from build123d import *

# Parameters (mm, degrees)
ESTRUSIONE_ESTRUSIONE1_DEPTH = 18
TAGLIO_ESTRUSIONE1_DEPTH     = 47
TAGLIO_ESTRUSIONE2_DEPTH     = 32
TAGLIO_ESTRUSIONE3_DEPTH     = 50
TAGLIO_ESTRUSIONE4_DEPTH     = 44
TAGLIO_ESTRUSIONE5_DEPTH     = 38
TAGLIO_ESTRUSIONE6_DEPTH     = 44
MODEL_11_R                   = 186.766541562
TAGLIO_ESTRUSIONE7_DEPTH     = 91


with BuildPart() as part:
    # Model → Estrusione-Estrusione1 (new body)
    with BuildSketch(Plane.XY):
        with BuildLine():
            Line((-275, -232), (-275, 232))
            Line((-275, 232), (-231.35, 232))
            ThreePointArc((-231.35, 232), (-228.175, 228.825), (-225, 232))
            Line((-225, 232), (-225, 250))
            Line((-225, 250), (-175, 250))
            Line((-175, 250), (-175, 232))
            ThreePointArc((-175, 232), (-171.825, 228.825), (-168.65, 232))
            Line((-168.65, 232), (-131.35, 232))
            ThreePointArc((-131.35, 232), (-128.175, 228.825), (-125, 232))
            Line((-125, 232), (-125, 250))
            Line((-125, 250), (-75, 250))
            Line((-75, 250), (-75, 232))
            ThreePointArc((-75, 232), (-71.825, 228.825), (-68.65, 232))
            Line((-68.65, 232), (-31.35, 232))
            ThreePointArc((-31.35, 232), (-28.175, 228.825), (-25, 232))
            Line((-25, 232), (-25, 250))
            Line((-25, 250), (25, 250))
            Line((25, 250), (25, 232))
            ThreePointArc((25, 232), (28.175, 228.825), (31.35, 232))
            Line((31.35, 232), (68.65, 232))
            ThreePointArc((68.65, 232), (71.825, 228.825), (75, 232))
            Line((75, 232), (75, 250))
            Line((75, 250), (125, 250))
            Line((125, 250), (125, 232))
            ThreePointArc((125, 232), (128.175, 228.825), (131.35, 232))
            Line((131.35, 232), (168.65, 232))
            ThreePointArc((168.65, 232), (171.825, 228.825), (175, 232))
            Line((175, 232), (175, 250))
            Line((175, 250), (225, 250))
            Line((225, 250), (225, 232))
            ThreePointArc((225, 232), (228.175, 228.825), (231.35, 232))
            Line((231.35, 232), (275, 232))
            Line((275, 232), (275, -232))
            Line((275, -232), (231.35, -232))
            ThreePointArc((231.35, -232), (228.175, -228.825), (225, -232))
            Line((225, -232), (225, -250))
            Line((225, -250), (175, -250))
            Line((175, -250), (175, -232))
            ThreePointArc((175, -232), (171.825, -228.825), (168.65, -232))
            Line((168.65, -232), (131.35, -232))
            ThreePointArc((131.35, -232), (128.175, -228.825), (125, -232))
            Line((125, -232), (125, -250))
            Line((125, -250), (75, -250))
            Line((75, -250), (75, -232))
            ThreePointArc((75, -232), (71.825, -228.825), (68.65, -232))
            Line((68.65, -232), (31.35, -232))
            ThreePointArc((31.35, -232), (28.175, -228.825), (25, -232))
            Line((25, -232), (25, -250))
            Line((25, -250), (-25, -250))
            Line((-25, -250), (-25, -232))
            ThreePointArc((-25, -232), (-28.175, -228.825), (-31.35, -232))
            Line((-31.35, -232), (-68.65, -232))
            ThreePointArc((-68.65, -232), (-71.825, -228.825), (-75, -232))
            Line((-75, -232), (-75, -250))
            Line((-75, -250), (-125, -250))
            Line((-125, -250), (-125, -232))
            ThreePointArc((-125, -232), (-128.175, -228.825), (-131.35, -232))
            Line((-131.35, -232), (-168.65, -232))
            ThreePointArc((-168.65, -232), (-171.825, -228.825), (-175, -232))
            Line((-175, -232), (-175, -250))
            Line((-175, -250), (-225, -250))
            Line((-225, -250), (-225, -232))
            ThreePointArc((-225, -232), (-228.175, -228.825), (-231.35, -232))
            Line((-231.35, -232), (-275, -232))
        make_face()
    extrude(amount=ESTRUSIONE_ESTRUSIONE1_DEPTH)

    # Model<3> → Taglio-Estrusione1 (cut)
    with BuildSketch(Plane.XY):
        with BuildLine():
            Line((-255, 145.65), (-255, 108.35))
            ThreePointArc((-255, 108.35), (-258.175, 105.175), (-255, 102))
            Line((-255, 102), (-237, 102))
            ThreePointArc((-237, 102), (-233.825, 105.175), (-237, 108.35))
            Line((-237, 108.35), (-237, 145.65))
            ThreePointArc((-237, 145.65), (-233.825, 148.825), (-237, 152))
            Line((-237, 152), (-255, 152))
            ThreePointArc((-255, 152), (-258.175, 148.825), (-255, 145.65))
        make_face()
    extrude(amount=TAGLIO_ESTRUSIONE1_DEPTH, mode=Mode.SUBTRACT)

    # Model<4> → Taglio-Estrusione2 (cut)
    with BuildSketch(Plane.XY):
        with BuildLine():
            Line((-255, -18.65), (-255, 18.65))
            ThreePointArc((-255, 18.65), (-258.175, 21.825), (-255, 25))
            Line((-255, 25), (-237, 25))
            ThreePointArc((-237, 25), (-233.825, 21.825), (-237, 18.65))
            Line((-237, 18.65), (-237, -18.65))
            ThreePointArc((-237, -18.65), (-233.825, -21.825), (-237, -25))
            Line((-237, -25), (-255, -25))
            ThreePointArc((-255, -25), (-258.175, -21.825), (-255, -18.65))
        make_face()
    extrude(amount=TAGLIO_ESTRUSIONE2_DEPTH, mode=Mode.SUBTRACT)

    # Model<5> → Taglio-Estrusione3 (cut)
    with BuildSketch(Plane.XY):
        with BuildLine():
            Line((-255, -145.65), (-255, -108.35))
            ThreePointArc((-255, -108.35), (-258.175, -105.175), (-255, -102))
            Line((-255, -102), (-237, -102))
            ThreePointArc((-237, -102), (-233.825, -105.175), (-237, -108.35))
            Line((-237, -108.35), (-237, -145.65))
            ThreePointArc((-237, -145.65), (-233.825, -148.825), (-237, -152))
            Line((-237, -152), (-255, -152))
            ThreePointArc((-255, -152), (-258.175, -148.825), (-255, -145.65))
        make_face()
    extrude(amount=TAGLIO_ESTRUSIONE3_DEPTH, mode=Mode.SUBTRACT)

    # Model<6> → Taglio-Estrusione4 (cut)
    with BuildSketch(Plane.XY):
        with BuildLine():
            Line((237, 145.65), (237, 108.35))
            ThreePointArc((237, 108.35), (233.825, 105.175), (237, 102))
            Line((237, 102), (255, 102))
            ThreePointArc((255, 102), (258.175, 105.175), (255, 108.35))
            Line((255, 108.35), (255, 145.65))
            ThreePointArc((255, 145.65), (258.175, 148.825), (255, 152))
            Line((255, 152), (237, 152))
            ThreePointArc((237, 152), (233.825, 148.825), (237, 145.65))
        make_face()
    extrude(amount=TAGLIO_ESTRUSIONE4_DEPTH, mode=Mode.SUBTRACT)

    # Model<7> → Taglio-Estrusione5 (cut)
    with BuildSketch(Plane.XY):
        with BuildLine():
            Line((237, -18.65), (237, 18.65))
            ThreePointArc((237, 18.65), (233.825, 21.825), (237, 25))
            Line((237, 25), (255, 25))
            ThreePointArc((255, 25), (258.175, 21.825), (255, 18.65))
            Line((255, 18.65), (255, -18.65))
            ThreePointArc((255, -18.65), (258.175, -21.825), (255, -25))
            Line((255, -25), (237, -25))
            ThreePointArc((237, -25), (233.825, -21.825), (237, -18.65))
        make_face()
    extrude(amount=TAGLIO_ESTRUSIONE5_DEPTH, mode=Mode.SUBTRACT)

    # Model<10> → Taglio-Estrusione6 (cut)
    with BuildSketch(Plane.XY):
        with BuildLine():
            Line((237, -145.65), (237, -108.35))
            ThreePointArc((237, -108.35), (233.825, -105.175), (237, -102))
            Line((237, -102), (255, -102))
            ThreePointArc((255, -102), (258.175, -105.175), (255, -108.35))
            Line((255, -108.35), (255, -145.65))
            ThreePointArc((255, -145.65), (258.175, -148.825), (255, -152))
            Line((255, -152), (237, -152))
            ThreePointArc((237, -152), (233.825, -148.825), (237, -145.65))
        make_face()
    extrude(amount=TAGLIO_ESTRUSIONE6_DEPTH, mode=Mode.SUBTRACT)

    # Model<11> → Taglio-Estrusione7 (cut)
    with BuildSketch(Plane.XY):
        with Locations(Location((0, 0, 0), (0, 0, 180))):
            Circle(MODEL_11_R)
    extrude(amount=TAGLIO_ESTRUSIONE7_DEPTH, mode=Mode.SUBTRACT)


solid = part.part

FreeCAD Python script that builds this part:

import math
import FreeCAD as App
import Part
import Sketcher
from FreeCAD import Vector
Q = App.Units.Quantity

doc = App.newDocument("Part")
body = doc.addObject("PartDesign::Body", "Body")

# Sketch on XY plane
sketch1 = doc.addObject("Sketcher::SketchObject", "Sketch")
body.addObject(sketch1)
sketch1.AttachmentSupport = (doc.XY_Plane, [""])
sketch1.MapMode = "FlatFace"
sketch1.addGeometry([
    Part.LineSegment(Vector(-275, 232, 0), Vector(-275, -232, 0)),  # 0
    Part.LineSegment(Vector(-275, -232, 0), Vector(-231.3, -232, 0)),  # 1
    Part.ArcOfCircle(Part.Circle(Vector(-228.2, -232, 0), Vector(0, 0, 1), 3.2), math.radians(0), math.radians(180)),  # 2
    Part.LineSegment(Vector(-225, -232, 0), Vector(-225, -250, 0)),  # 3
    Part.LineSegment(Vector(-225, -250, 0), Vector(-175, -250, 0)),  # 4
    Part.LineSegment(Vector(-175, -250, 0), Vector(-175, -232, 0)),  # 5
    Part.ArcOfCircle(Part.Circle(Vector(-171.8, -232, 0), Vector(0, 0, 1), 3.2), math.radians(0), math.radians(180)),  # 6
    Part.LineSegment(Vector(-168.7, -232, 0), Vector(-131.3, -232, 0)),  # 7
    Part.ArcOfCircle(Part.Circle(Vector(-128.2, -232, 0), Vector(0, 0, 1), 3.2), math.radians(0), math.radians(180)),  # 8
    Part.LineSegment(Vector(-125, -232, 0), Vector(-125, -250, 0)),  # 9
    Part.LineSegment(Vector(-125, -250, 0), Vector(-75, -250, 0)),  # 10
    Part.LineSegment(Vector(-75, -250, 0), Vector(-75, -232, 0)),  # 11
    Part.ArcOfCircle(Part.Circle(Vector(-71.8, -232, 0), Vector(0, 0, 1), 3.2), math.radians(0), math.radians(180)),  # 12
    Part.LineSegment(Vector(-68.7, -232, 0), Vector(-31.4, -232, 0)),  # 13
    Part.ArcOfCircle(Part.Circle(Vector(-28.2, -232, 0), Vector(0, 0, 1), 3.2), math.radians(0), math.radians(180)),  # 14
    Part.LineSegment(Vector(-25, -232, 0), Vector(-25, -250, 0)),  # 15
    Part.LineSegment(Vector(-25, -250, 0), Vector(25, -250, 0)),  # 16
    Part.LineSegment(Vector(25, -250, 0), Vector(25, -232, 0)),  # 17
    Part.ArcOfCircle(Part.Circle(Vector(28.2, -232, 0), Vector(0, 0, 1), 3.2), math.radians(0), math.radians(180)),  # 18
    Part.LineSegment(Vector(31.4, -232, 0), Vector(68.7, -232, 0)),  # 19
    Part.ArcOfCircle(Part.Circle(Vector(71.8, -232, 0), Vector(0, 0, 1), 3.2), math.radians(0), math.radians(180)),  # 20
    Part.LineSegment(Vector(75, -232, 0), Vector(75, -250, 0)),  # 21
    Part.LineSegment(Vector(75, -250, 0), Vector(125, -250, 0)),  # 22
    Part.LineSegment(Vector(125, -250, 0), Vector(125, -232, 0)),  # 23
    Part.ArcOfCircle(Part.Circle(Vector(128.2, -232, 0), Vector(0, 0, 1), 3.2), math.radians(0), math.radians(180)),  # 24
    Part.LineSegment(Vector(131.3, -232, 0), Vector(168.7, -232, 0)),  # 25
    Part.ArcOfCircle(Part.Circle(Vector(171.8, -232, 0), Vector(0, 0, 1), 3.2), math.radians(0), math.radians(180)),  # 26
    Part.LineSegment(Vector(175, -232, 0), Vector(175, -250, 0)),  # 27
    Part.LineSegment(Vector(175, -250, 0), Vector(225, -250, 0)),  # 28
    Part.LineSegment(Vector(225, -250, 0), Vector(225, -232, 0)),  # 29
    Part.ArcOfCircle(Part.Circle(Vector(228.2, -232, 0), Vector(0, 0, 1), 3.2), math.radians(0), math.radians(180)),  # 30
    Part.LineSegment(Vector(231.3, -232, 0), Vector(275, -232, 0)),  # 31
    Part.LineSegment(Vector(275, -232, 0), Vector(275, 232, 0)),  # 32
    Part.LineSegment(Vector(275, 232, 0), Vector(231.3, 232, 0)),  # 33
    Part.ArcOfCircle(Part.Circle(Vector(228.2, 232, 0), Vector(0, 0, 1), 3.2), math.radians(180), math.radians(360)),  # 34
    Part.LineSegment(Vector(225, 232, 0), Vector(225, 250, 0)),  # 35
    Part.LineSegment(Vector(225, 250, 0), Vector(175, 250, 0)),  # 36
    Part.LineSegment(Vector(175, 250, 0), Vector(175, 232, 0)),  # 37
    Part.ArcOfCircle(Part.Circle(Vector(171.8, 232, 0), Vector(0, 0, 1), 3.2), math.radians(180), math.radians(360)),  # 38
    Part.LineSegment(Vector(168.7, 232, 0), Vector(131.3, 232, 0)),  # 39
    Part.ArcOfCircle(Part.Circle(Vector(128.2, 232, 0), Vector(0, 0, 1), 3.2), math.radians(180), math.radians(360)),  # 40
    Part.LineSegment(Vector(125, 232, 0), Vector(125, 250, 0)),  # 41
    Part.LineSegment(Vector(125, 250, 0), Vector(75, 250, 0)),  # 42
    Part.LineSegment(Vector(75, 250, 0), Vector(75, 232, 0)),  # 43
    Part.ArcOfCircle(Part.Circle(Vector(71.8, 232, 0), Vector(0, 0, 1), 3.2), math.radians(180), math.radians(360)),  # 44
    Part.LineSegment(Vector(68.7, 232, 0), Vector(31.4, 232, 0)),  # 45
    Part.ArcOfCircle(Part.Circle(Vector(28.2, 232, 0), Vector(0, 0, 1), 3.2), math.radians(180), math.radians(360)),  # 46
    Part.LineSegment(Vector(25, 232, 0), Vector(25, 250, 0)),  # 47
    Part.LineSegment(Vector(25, 250, 0), Vector(-25, 250, 0)),  # 48
    Part.LineSegment(Vector(-25, 250, 0), Vector(-25, 232, 0)),  # 49
    Part.ArcOfCircle(Part.Circle(Vector(-28.2, 232, 0), Vector(0, 0, 1), 3.2), math.radians(180), math.radians(360)),  # 50
    Part.LineSegment(Vector(-31.4, 232, 0), Vector(-68.7, 232, 0)),  # 51
    Part.ArcOfCircle(Part.Circle(Vector(-71.8, 232, 0), Vector(0, 0, 1), 3.2), math.radians(180), math.radians(360)),  # 52
    Part.LineSegment(Vector(-75, 232, 0), Vector(-75, 250, 0)),  # 53
    Part.LineSegment(Vector(-75, 250, 0), Vector(-125, 250, 0)),  # 54
    Part.LineSegment(Vector(-125, 250, 0), Vector(-125, 232, 0)),  # 55
    Part.ArcOfCircle(Part.Circle(Vector(-128.2, 232, 0), Vector(0, 0, 1), 3.2), math.radians(180), math.radians(360)),  # 56
    Part.LineSegment(Vector(-131.3, 232, 0), Vector(-168.7, 232, 0)),  # 57
    Part.ArcOfCircle(Part.Circle(Vector(-171.8, 232, 0), Vector(0, 0, 1), 3.2), math.radians(180), math.radians(360)),  # 58
    Part.LineSegment(Vector(-175, 232, 0), Vector(-175, 250, 0)),  # 59
    Part.LineSegment(Vector(-175, 250, 0), Vector(-225, 250, 0)),  # 60
    Part.LineSegment(Vector(-225, 250, 0), Vector(-225, 232, 0)),  # 61
    Part.ArcOfCircle(Part.Circle(Vector(-228.2, 232, 0), Vector(0, 0, 1), 3.2), math.radians(180), math.radians(360)),  # 62
    Part.LineSegment(Vector(-231.3, 232, 0), Vector(-275, 232, 0)),  # 63
], False)
sketch1.addConstraint([
    Sketcher.Constraint("Coincident", 0, 2, 1, 1),
    Sketcher.Constraint("Coincident", 1, 2, 2, 2),
    Sketcher.Constraint("Tangent", 2, 1, 3, 1),
    Sketcher.Constraint("Coincident", 3, 2, 4, 1),
    Sketcher.Constraint("Coincident", 4, 2, 5, 1),
    Sketcher.Constraint("Tangent", 5, 2, 6, 2),
    Sketcher.Constraint("Coincident", 6, 1, 7, 1),
    Sketcher.Constraint("Coincident", 7, 2, 8, 2),
    Sketcher.Constraint("Tangent", 8, 1, 9, 1),
    Sketcher.Constraint("Coincident", 9, 2, 10, 1),
    Sketcher.Constraint("Coincident", 10, 2, 11, 1),
    Sketcher.Constraint("Tangent", 11, 2, 12, 2),
    Sketcher.Constraint("Coincident", 12, 1, 13, 1),
    Sketcher.Constraint("Coincident", 13, 2, 14, 2),
    Sketcher.Constraint("Tangent", 14, 1, 15, 1),
    Sketcher.Constraint("Coincident", 15, 2, 16, 1),
    Sketcher.Constraint("Coincident", 16, 2, 17, 1),
    Sketcher.Constraint("Tangent", 17, 2, 18, 2),
    Sketcher.Constraint("Coincident", 18, 1, 19, 1),
    Sketcher.Constraint("Coincident", 19, 2, 20, 2),
    Sketcher.Constraint("Tangent", 20, 1, 21, 1),
    Sketcher.Constraint("Coincident", 21, 2, 22, 1),
    Sketcher.Constraint("Coincident", 22, 2, 23, 1),
    Sketcher.Constraint("Tangent", 23, 2, 24, 2),
    Sketcher.Constraint("Coincident", 24, 1, 25, 1),
    Sketcher.Constraint("Coincident", 25, 2, 26, 2),
    Sketcher.Constraint("Tangent", 26, 1, 27, 1),
    Sketcher.Constraint("Coincident", 27, 2, 28, 1),
    Sketcher.Constraint("Coincident", 28, 2, 29, 1),
    Sketcher.Constraint("Tangent", 29, 2, 30, 2),
    Sketcher.Constraint("Coincident", 30, 1, 31, 1),
    Sketcher.Constraint("Coincident", 31, 2, 32, 1),
    Sketcher.Constraint("Coincident", 32, 2, 33, 1),
    Sketcher.Constraint("Coincident", 33, 2, 34, 2),
    Sketcher.Constraint("Tangent", 34, 1, 35, 1),
    Sketcher.Constraint("Coincident", 35, 2, 36, 1),
    Sketcher.Constraint("Coincident", 36, 2, 37, 1),
    Sketcher.Constraint("Tangent", 37, 2, 38, 2),
    Sketcher.Constraint("Coincident", 38, 1, 39, 1),
    Sketcher.Constraint("Coincident", 39, 2, 40, 2),
    Sketcher.Constraint("Tangent", 40, 1, 41, 1),
    Sketcher.Constraint("Coincident", 41, 2, 42, 1),
    Sketcher.Constraint("Coincident", 42, 2, 43, 1),
    Sketcher.Constraint("Tangent", 43, 2, 44, 2),
    Sketcher.Constraint("Coincident", 44, 1, 45, 1),
    Sketcher.Constraint("Coincident", 45, 2, 46, 2),
    Sketcher.Constraint("Tangent", 46, 1, 47, 1),
    Sketcher.Constraint("Coincident", 47, 2, 48, 1),
    Sketcher.Constraint("Coincident", 48, 2, 49, 1),
    Sketcher.Constraint("Tangent", 49, 2, 50, 2),
    Sketcher.Constraint("Coincident", 50, 1, 51, 1),
    Sketcher.Constraint("Coincident", 51, 2, 52, 2),
    Sketcher.Constraint("Tangent", 52, 1, 53, 1),
    Sketcher.Constraint("Coincident", 53, 2, 54, 1),
    Sketcher.Constraint("Coincident", 54, 2, 55, 1),
    Sketcher.Constraint("Tangent", 55, 2, 56, 2),
    Sketcher.Constraint("Coincident", 56, 1, 57, 1),
    Sketcher.Constraint("Coincident", 57, 2, 58, 2),
    Sketcher.Constraint("Tangent", 58, 1, 59, 1),
    Sketcher.Constraint("Coincident", 59, 2, 60, 1),
    Sketcher.Constraint("Coincident", 60, 2, 61, 1),
    Sketcher.Constraint("Tangent", 61, 2, 62, 2),
    Sketcher.Constraint("Coincident", 62, 1, 63, 1),
    Sketcher.Constraint("Coincident", 63, 2, 0, 1),
    Sketcher.Constraint("Vertical", 0),
    Sketcher.Constraint("Horizontal", 1),
    Sketcher.Constraint("Vertical", 3),
    Sketcher.Constraint("Horizontal", 4),
    Sketcher.Constraint("Vertical", 5),
    Sketcher.Constraint("Horizontal", 7),
    Sketcher.Constraint("Vertical", 9),
    Sketcher.Constraint("Horizontal", 10),
    Sketcher.Constraint("Vertical", 11),
    Sketcher.Constraint("Horizontal", 13),
    Sketcher.Constraint("Vertical", 15),
    Sketcher.Constraint("Horizontal", 16),
    Sketcher.Constraint("Vertical", 17),
    Sketcher.Constraint("Horizontal", 19),
    Sketcher.Constraint("Vertical", 21),
    Sketcher.Constraint("Horizontal", 22),
    Sketcher.Constraint("Vertical", 23),
    Sketcher.Constraint("Horizontal", 25),
    Sketcher.Constraint("Vertical", 27),
    Sketcher.Constraint("Horizontal", 28),
    Sketcher.Constraint("Vertical", 29),
    Sketcher.Constraint("Horizontal", 31),
    Sketcher.Constraint("Vertical", 32),
    Sketcher.Constraint("Horizontal", 33),
    Sketcher.Constraint("Vertical", 35),
    Sketcher.Constraint("Horizontal", 36),
    Sketcher.Constraint("Vertical", 37),
    Sketcher.Constraint("Horizontal", 39),
    Sketcher.Constraint("Vertical", 41),
    Sketcher.Constraint("Horizontal", 42),
    Sketcher.Constraint("Vertical", 43),
    Sketcher.Constraint("Horizontal", 45),
    Sketcher.Constraint("Vertical", 47),
    Sketcher.Constraint("Horizontal", 48),
    Sketcher.Constraint("Vertical", 49),
    Sketcher.Constraint("Horizontal", 51),
    Sketcher.Constraint("Vertical", 53),
    Sketcher.Constraint("Horizontal", 54),
    Sketcher.Constraint("Vertical", 55),
    Sketcher.Constraint("Horizontal", 57),
    Sketcher.Constraint("Vertical", 59),
    Sketcher.Constraint("Horizontal", 60),
    Sketcher.Constraint("Vertical", 61),
    Sketcher.Constraint("Horizontal", 63),
    Sketcher.Constraint("Equal", 2, 6),
    Sketcher.Constraint("Equal", 6, 8),
    Sketcher.Constraint("Equal", 8, 12),
    Sketcher.Constraint("Equal", 12, 14),
    Sketcher.Constraint("Equal", 14, 18),
    Sketcher.Constraint("Equal", 18, 20),
    Sketcher.Constraint("Equal", 20, 24),
    Sketcher.Constraint("Equal", 24, 26),
    Sketcher.Constraint("Equal", 26, 30),
    Sketcher.Constraint("Equal", 30, 34),
    Sketcher.Constraint("Equal", 34, 38),
    Sketcher.Constraint("Equal", 38, 40),
    Sketcher.Constraint("Equal", 40, 44),
    Sketcher.Constraint("Equal", 44, 46),
    Sketcher.Constraint("Equal", 46, 50),
    Sketcher.Constraint("Equal", 50, 52),
    Sketcher.Constraint("Equal", 52, 56),
    Sketcher.Constraint("Equal", 56, 58),
    Sketcher.Constraint("Equal", 58, 62),
    Sketcher.Constraint("Symmetric", 2, 3, 34, 3, -1, 1),
    Sketcher.Constraint("Symmetric", 6, 3, 38, 3, -1, 1),
    Sketcher.Constraint("Symmetric", 8, 3, 40, 3, -1, 1),
    Sketcher.Constraint("Symmetric", 12, 3, 44, 3, -1, 1),
    Sketcher.Constraint("Symmetric", 14, 3, 46, 3, -1, 1),
    Sketcher.Constraint("Symmetric", 18, 3, 50, 3, -1, 1),
    Sketcher.Constraint("Symmetric", 20, 3, 52, 3, -1, 1),
    Sketcher.Constraint("Symmetric", 24, 3, 56, 3, -1, 1),
    Sketcher.Constraint("Symmetric", 26, 3, 58, 3, -1, 1),
    Sketcher.Constraint("Symmetric", 30, 3, 62, 3, -1, 1),
    Sketcher.Constraint("Symmetric", 0, 2, 32, 2, -1, 1),
    Sketcher.Constraint("Symmetric", 14, 3, 18, 3, -2),
    Sketcher.Constraint("Symmetric", 12, 3, 20, 3, -2),
    Sketcher.Constraint("Symmetric", 8, 3, 24, 3, -2),
    Sketcher.Constraint("Symmetric", 6, 3, 26, 3, -2),
    Sketcher.Constraint("Symmetric", 2, 3, 30, 3, -2),
    Sketcher.Constraint("Horizontal", 2, 3, 6, 3),
    Sketcher.Constraint("Horizontal", 6, 3, 8, 3),
    Sketcher.Constraint("Horizontal", 8, 3, 12, 3),
    Sketcher.Constraint("Horizontal", 12, 3, 14, 3),
    Sketcher.Constraint("Horizontal", 30, 3, 0, 2),
    Sketcher.Constraint("Horizontal", 5, 2, 6, 1),
    Sketcher.Constraint("Horizontal", 4, 2, 9, 2),
    Sketcher.Constraint("Horizontal", 11, 2, 12, 1),
    Sketcher.Constraint("Horizontal", 10, 2, 15, 2),
    Sketcher.Constraint("Horizontal", 17, 2, 18, 1),
    Sketcher.Constraint("Horizontal", 16, 2, 21, 2),
    Sketcher.Constraint("Horizontal", 23, 2, 24, 1),
    Sketcher.Constraint("Horizontal", 22, 2, 27, 2),
    Sketcher.Constraint("Horizontal", 29, 2, 30, 1),
    Sketcher.Constraint("Horizontal", 37, 2, 38, 1),
    Sketcher.Constraint("Horizontal", 36, 2, 41, 2),
    Sketcher.Constraint("Horizontal", 43, 2, 44, 1),
    Sketcher.Constraint("Horizontal", 42, 2, 47, 2),
    Sketcher.Constraint("Horizontal", 49, 2, 50, 1),
    Sketcher.Constraint("Horizontal", 48, 2, 53, 2),
    Sketcher.Constraint("Horizontal", 55, 2, 56, 1),
    Sketcher.Constraint("Horizontal", 54, 2, 59, 2),
    Sketcher.Constraint("Horizontal", 61, 2, 62, 1),
    Sketcher.Constraint("Equal", 4, 10),
    Sketcher.Constraint("Equal", 7, 13),
    Sketcher.Constraint("Equal", 10, 16),
    Sketcher.Constraint("Equal", 29, 35),
    Sketcher.Constraint("DistanceX", 4, 1, 4, 2, Q("50 mm")),
    Sketcher.Constraint("DistanceY", 0, 2, 0, 1, Q("464 mm")),
    Sketcher.Constraint("DistanceY", 3, 2, 3, 1, Q("18 mm")),
    Sketcher.Constraint("DistanceX", 7, 1, 7, 2, Q("37.3 mm")),
    Sketcher.Constraint("DistanceX", 0, 2, -1, 1, Q("275 mm")),
    Sketcher.Constraint("DistanceX", 2, 1, -1, 1, Q("225 mm")),
])
pad1 = doc.addObject("PartDesign::Pad", "Pad")
body.addObject(pad1)
pad1.Profile = sketch1
pad1.Length = 18

# Sketch on XY plane
sketch2 = doc.addObject("Sketcher::SketchObject", "Sketch001")
body.addObject(sketch2)
sketch2.AttachmentSupport = (doc.XY_Plane, [""])
sketch2.MapMode = "FlatFace"
sketch2.addGeometry([
    Part.LineSegment(Vector(-255, 145.7, 0), Vector(-255, 108.3, 0)),  # 0
    Part.ArcOfCircle(Part.Circle(Vector(-255, 105.2, 0), Vector(0, 0, 1), 3.2), math.radians(90), math.radians(270)),  # 1
    Part.LineSegment(Vector(-255, 102, 0), Vector(-237, 102, 0)),  # 2
    Part.ArcOfCircle(Part.Circle(Vector(-237, 105.2, 0), Vector(0, 0, 1), 3.2), math.radians(-90), math.radians(90)),  # 3
    Part.LineSegment(Vector(-237, 108.3, 0), Vector(-237, 145.7, 0)),  # 4
    Part.ArcOfCircle(Part.Circle(Vector(-237, 148.8, 0), Vector(0, 0, 1), 3.2), math.radians(-90), math.radians(90)),  # 5
    Part.LineSegment(Vector(-237, 152, 0), Vector(-255, 152, 0)),  # 6
    Part.ArcOfCircle(Part.Circle(Vector(-255, 148.8, 0), Vector(0, 0, 1), 3.2), math.radians(90), math.radians(270)),  # 7
], False)
sketch2.addConstraint([
    Sketcher.Constraint("Coincident", 0, 2, 1, 1),
    Sketcher.Constraint("Tangent", 1, 2, 2, 1),
    Sketcher.Constraint("Tangent", 2, 2, 3, 1),
    Sketcher.Constraint("Coincident", 3, 2, 4, 1),
    Sketcher.Constraint("Coincident", 4, 2, 5, 1),
    Sketcher.Constraint("Tangent", 5, 2, 6, 1),
    Sketcher.Constraint("Tangent", 6, 2, 7, 1),
    Sketcher.Constraint("Coincident", 7, 2, 0, 1),
    Sketcher.Constraint("Vertical", 0),
    Sketcher.Constraint("Horizontal", 2),
    Sketcher.Constraint("Vertical", 4),
    Sketcher.Constraint("Horizontal", 6),
    Sketcher.Constraint("Equal", 1, 3),
    Sketcher.Constraint("Equal", 3, 5),
    Sketcher.Constraint("Equal", 5, 7),
    Sketcher.Constraint("Vertical", 3, 3, 5, 3),
    Sketcher.Constraint("Vertical", 1, 3, 7, 3),
    Sketcher.Constraint("Vertical", 7, 3, 0, 2),
    Sketcher.Constraint("Vertical", 2, 2, 3, 2),
    Sketcher.Constraint("DistanceX", 2, 1, 2, 2, Q("18 mm")),
    Sketcher.Constraint("DistanceY", 0, 2, 0, 1, Q("37.3 mm")),
    Sketcher.Constraint("DistanceX", 1, 3, -1, 1, Q("255 mm")),
    Sketcher.Constraint("DistanceY", -1, 1, 1, 2, Q("102 mm")),
    Sketcher.Constraint("DistanceY", -1, 1, 5, 2, Q("152 mm")),
])
pocket1 = doc.addObject("PartDesign::Pocket", "Pocket")
body.addObject(pocket1)
pocket1.Profile = sketch2
pocket1.Length = 47
pocket1.Reversed = True

# Sketch on XY plane
sketch3 = doc.addObject("Sketcher::SketchObject", "Sketch002")
body.addObject(sketch3)
sketch3.AttachmentSupport = (doc.XY_Plane, [""])
sketch3.MapMode = "FlatFace"
sketch3.addGeometry([
    Part.LineSegment(Vector(-255, 18.6, 0), Vector(-255, -18.6, 0)),  # 0
    Part.ArcOfCircle(Part.Circle(Vector(-255, -21.8, 0), Vector(0, 0, 1), 3.2), math.radians(90), math.radians(270)),  # 1
    Part.LineSegment(Vector(-255, -25, 0), Vector(-237, -25, 0)),  # 2
    Part.ArcOfCircle(Part.Circle(Vector(-237, -21.8, 0), Vector(0, 0, 1), 3.2), math.radians(-90), math.radians(90)),  # 3
    Part.LineSegment(Vector(-237, -18.6, 0), Vector(-237, 18.6, 0)),  # 4
    Part.ArcOfCircle(Part.Circle(Vector(-237, 21.8, 0), Vector(0, 0, 1), 3.2), math.radians(-90), math.radians(90)),  # 5
    Part.LineSegment(Vector(-237, 25, 0), Vector(-255, 25, 0)),  # 6
    Part.ArcOfCircle(Part.Circle(Vector(-255, 21.8, 0), Vector(0, 0, 1), 3.2), math.radians(90), math.radians(270)),  # 7
], False)
sketch3.addConstraint([
    Sketcher.Constraint("Coincident", 0, 2, 1, 1),
    Sketcher.Constraint("Tangent", 1, 2, 2, 1),
    Sketcher.Constraint("Tangent", 2, 2, 3, 1),
    Sketcher.Constraint("Coincident", 3, 2, 4, 1),
    Sketcher.Constraint("Coincident", 4, 2, 5, 1),
    Sketcher.Constraint("Tangent", 5, 2, 6, 1),
    Sketcher.Constraint("Tangent", 6, 2, 7, 1),
    Sketcher.Constraint("Coincident", 7, 2, 0, 1),
    Sketcher.Constraint("Vertical", 0),
    Sketcher.Constraint("Horizontal", 2),
    Sketcher.Constraint("Vertical", 4),
    Sketcher.Constraint("Horizontal", 6),
    Sketcher.Constraint("Equal", 1, 3),
    Sketcher.Constraint("Equal", 3, 5),
    Sketcher.Constraint("Equal", 5, 7),
    Sketcher.Constraint("Symmetric", 3, 3, 5, 3, -1),
    Sketcher.Constraint("Vertical", 1, 3, 7, 3),
    Sketcher.Constraint("Vertical", 7, 3, 0, 2),
    Sketcher.Constraint("Vertical", 2, 2, 3, 2),
    Sketcher.Constraint("DistanceX", 2, 1, 2, 2, Q("18 mm")),
    Sketcher.Constraint("DistanceY", 0, 2, 0, 1, Q("37.3 mm")),
    Sketcher.Constraint("DistanceX", 1, 3, -1, 1, Q("255 mm")),
    Sketcher.Constraint("DistanceY", 1, 2, -1, 1, Q("25 mm")),
])
pocket2 = doc.addObject("PartDesign::Pocket", "Pocket001")
body.addObject(pocket2)
pocket2.Profile = sketch3
pocket2.Length = 32
pocket2.Reversed = True

# Sketch on XY plane
sketch4 = doc.addObject("Sketcher::SketchObject", "Sketch003")
body.addObject(sketch4)
sketch4.AttachmentSupport = (doc.XY_Plane, [""])
sketch4.MapMode = "FlatFace"
sketch4.addGeometry([
    Part.LineSegment(Vector(-255, -108.3, 0), Vector(-255, -145.7, 0)),  # 0
    Part.ArcOfCircle(Part.Circle(Vector(-255, -148.8, 0), Vector(0, 0, 1), 3.2), math.radians(90), math.radians(270)),  # 1
    Part.LineSegment(Vector(-255, -152, 0), Vector(-237, -152, 0)),  # 2
    Part.ArcOfCircle(Part.Circle(Vector(-237, -148.8, 0), Vector(0, 0, 1), 3.2), math.radians(-90), math.radians(90)),  # 3
    Part.LineSegment(Vector(-237, -145.7, 0), Vector(-237, -108.3, 0)),  # 4
    Part.ArcOfCircle(Part.Circle(Vector(-237, -105.2, 0), Vector(0, 0, 1), 3.2), math.radians(-90), math.radians(90)),  # 5
    Part.LineSegment(Vector(-237, -102, 0), Vector(-255, -102, 0)),  # 6
    Part.ArcOfCircle(Part.Circle(Vector(-255, -105.2, 0), Vector(0, 0, 1), 3.2), math.radians(90), math.radians(270)),  # 7
], False)
sketch4.addConstraint([
    Sketcher.Constraint("Coincident", 0, 2, 1, 1),
    Sketcher.Constraint("Tangent", 1, 2, 2, 1),
    Sketcher.Constraint("Tangent", 2, 2, 3, 1),
    Sketcher.Constraint("Coincident", 3, 2, 4, 1),
    Sketcher.Constraint("Coincident", 4, 2, 5, 1),
    Sketcher.Constraint("Tangent", 5, 2, 6, 1),
    Sketcher.Constraint("Tangent", 6, 2, 7, 1),
    Sketcher.Constraint("Coincident", 7, 2, 0, 1),
    Sketcher.Constraint("Vertical", 0),
    Sketcher.Constraint("Horizontal", 2),
    Sketcher.Constraint("Vertical", 4),
    Sketcher.Constraint("Horizontal", 6),
    Sketcher.Constraint("Equal", 1, 3),
    Sketcher.Constraint("Equal", 3, 5),
    Sketcher.Constraint("Equal", 5, 7),
    Sketcher.Constraint("Vertical", 3, 3, 5, 3),
    Sketcher.Constraint("Vertical", 1, 3, 7, 3),
    Sketcher.Constraint("Vertical", 7, 3, 0, 2),
    Sketcher.Constraint("Vertical", 2, 2, 3, 2),
    Sketcher.Constraint("DistanceX", 2, 1, 2, 2, Q("18 mm")),
    Sketcher.Constraint("DistanceY", 0, 2, 0, 1, Q("37.3 mm")),
    Sketcher.Constraint("DistanceX", 1, 3, -1, 1, Q("255 mm")),
    Sketcher.Constraint("DistanceY", 1, 2, -1, 1, Q("152 mm")),
    Sketcher.Constraint("DistanceY", 5, 2, -1, 1, Q("102 mm")),
])
pocket3 = doc.addObject("PartDesign::Pocket", "Pocket002")
body.addObject(pocket3)
pocket3.Profile = sketch4
pocket3.Length = 50
pocket3.Reversed = True

# Sketch on XY plane
sketch5 = doc.addObject("Sketcher::SketchObject", "Sketch004")
body.addObject(sketch5)
sketch5.AttachmentSupport = (doc.XY_Plane, [""])
sketch5.MapMode = "FlatFace"
sketch5.addGeometry([
    Part.LineSegment(Vector(237, 145.7, 0), Vector(237, 108.3, 0)),  # 0
    Part.ArcOfCircle(Part.Circle(Vector(237, 105.2, 0), Vector(0, 0, 1), 3.2), math.radians(90), math.radians(270)),  # 1
    Part.LineSegment(Vector(237, 102, 0), Vector(255, 102, 0)),  # 2
    Part.ArcOfCircle(Part.Circle(Vector(255, 105.2, 0), Vector(0, 0, 1), 3.2), math.radians(-90), math.radians(90)),  # 3
    Part.LineSegment(Vector(255, 108.3, 0), Vector(255, 145.7, 0)),  # 4
    Part.ArcOfCircle(Part.Circle(Vector(255, 148.8, 0), Vector(0, 0, 1), 3.2), math.radians(-90), math.radians(90)),  # 5
    Part.LineSegment(Vector(255, 152, 0), Vector(237, 152, 0)),  # 6
    Part.ArcOfCircle(Part.Circle(Vector(237, 148.8, 0), Vector(0, 0, 1), 3.2), math.radians(90), math.radians(270)),  # 7
], False)
sketch5.addConstraint([
    Sketcher.Constraint("Coincident", 0, 2, 1, 1),
    Sketcher.Constraint("Tangent", 1, 2, 2, 1),
    Sketcher.Constraint("Tangent", 2, 2, 3, 1),
    Sketcher.Constraint("Coincident", 3, 2, 4, 1),
    Sketcher.Constraint("Coincident", 4, 2, 5, 1),
    Sketcher.Constraint("Tangent", 5, 2, 6, 1),
    Sketcher.Constraint("Tangent", 6, 2, 7, 1),
    Sketcher.Constraint("Coincident", 7, 2, 0, 1),
    Sketcher.Constraint("Vertical", 0),
    Sketcher.Constraint("Horizontal", 2),
    Sketcher.Constraint("Vertical", 4),
    Sketcher.Constraint("Horizontal", 6),
    Sketcher.Constraint("Equal", 1, 3),
    Sketcher.Constraint("Equal", 3, 5),
    Sketcher.Constraint("Equal", 5, 7),
    Sketcher.Constraint("Vertical", 3, 3, 5, 3),
    Sketcher.Constraint("Vertical", 1, 3, 7, 3),
    Sketcher.Constraint("Vertical", 7, 3, 0, 2),
    Sketcher.Constraint("Vertical", 2, 2, 3, 2),
    Sketcher.Constraint("DistanceX", 2, 1, 2, 2, Q("18 mm")),
    Sketcher.Constraint("DistanceY", 0, 2, 0, 1, Q("37.3 mm")),
    Sketcher.Constraint("DistanceX", -1, 1, 1, 3, Q("237 mm")),
    Sketcher.Constraint("DistanceY", -1, 1, 1, 2, Q("102 mm")),
    Sketcher.Constraint("DistanceY", -1, 1, 5, 2, Q("152 mm")),
])
pocket4 = doc.addObject("PartDesign::Pocket", "Pocket003")
body.addObject(pocket4)
pocket4.Profile = sketch5
pocket4.Length = 44
pocket4.Reversed = True

# Sketch on XY plane
sketch6 = doc.addObject("Sketcher::SketchObject", "Sketch005")
body.addObject(sketch6)
sketch6.AttachmentSupport = (doc.XY_Plane, [""])
sketch6.MapMode = "FlatFace"
sketch6.addGeometry([
    Part.LineSegment(Vector(237, 18.6, 0), Vector(237, -18.6, 0)),  # 0
    Part.ArcOfCircle(Part.Circle(Vector(237, -21.8, 0), Vector(0, 0, 1), 3.2), math.radians(90), math.radians(270)),  # 1
    Part.LineSegment(Vector(237, -25, 0), Vector(255, -25, 0)),  # 2
    Part.ArcOfCircle(Part.Circle(Vector(255, -21.8, 0), Vector(0, 0, 1), 3.2), math.radians(-90), math.radians(90)),  # 3
    Part.LineSegment(Vector(255, -18.6, 0), Vector(255, 18.6, 0)),  # 4
    Part.ArcOfCircle(Part.Circle(Vector(255, 21.8, 0), Vector(0, 0, 1), 3.2), math.radians(-90), math.radians(90)),  # 5
    Part.LineSegment(Vector(255, 25, 0), Vector(237, 25, 0)),  # 6
    Part.ArcOfCircle(Part.Circle(Vector(237, 21.8, 0), Vector(0, 0, 1), 3.2), math.radians(90), math.radians(270)),  # 7
], False)
sketch6.addConstraint([
    Sketcher.Constraint("Coincident", 0, 2, 1, 1),
    Sketcher.Constraint("Tangent", 1, 2, 2, 1),
    Sketcher.Constraint("Tangent", 2, 2, 3, 1),
    Sketcher.Constraint("Coincident", 3, 2, 4, 1),
    Sketcher.Constraint("Coincident", 4, 2, 5, 1),
    Sketcher.Constraint("Tangent", 5, 2, 6, 1),
    Sketcher.Constraint("Tangent", 6, 2, 7, 1),
    Sketcher.Constraint("Coincident", 7, 2, 0, 1),
    Sketcher.Constraint("Vertical", 0),
    Sketcher.Constraint("Horizontal", 2),
    Sketcher.Constraint("Vertical", 4),
    Sketcher.Constraint("Horizontal", 6),
    Sketcher.Constraint("Equal", 1, 3),
    Sketcher.Constraint("Equal", 3, 5),
    Sketcher.Constraint("Equal", 5, 7),
    Sketcher.Constraint("Symmetric", 3, 3, 5, 3, -1),
    Sketcher.Constraint("Vertical", 1, 3, 7, 3),
    Sketcher.Constraint("Vertical", 7, 3, 0, 2),
    Sketcher.Constraint("Vertical", 2, 2, 3, 2),
    Sketcher.Constraint("DistanceX", 2, 1, 2, 2, Q("18 mm")),
    Sketcher.Constraint("DistanceY", 0, 2, 0, 1, Q("37.3 mm")),
    Sketcher.Constraint("DistanceX", -1, 1, 1, 3, Q("237 mm")),
    Sketcher.Constraint("DistanceY", 1, 2, -1, 1, Q("25 mm")),
])
pocket5 = doc.addObject("PartDesign::Pocket", "Pocket004")
body.addObject(pocket5)
pocket5.Profile = sketch6
pocket5.Length = 38
pocket5.Reversed = True

# Sketch on XY plane
sketch7 = doc.addObject("Sketcher::SketchObject", "Sketch006")
body.addObject(sketch7)
sketch7.AttachmentSupport = (doc.XY_Plane, [""])
sketch7.MapMode = "FlatFace"
sketch7.addGeometry([
    Part.LineSegment(Vector(237, -108.3, 0), Vector(237, -145.7, 0)),  # 0
    Part.ArcOfCircle(Part.Circle(Vector(237, -148.8, 0), Vector(0, 0, 1), 3.2), math.radians(90), math.radians(270)),  # 1
    Part.LineSegment(Vector(237, -152, 0), Vector(255, -152, 0)),  # 2
    Part.ArcOfCircle(Part.Circle(Vector(255, -148.8, 0), Vector(0, 0, 1), 3.2), math.radians(-90), math.radians(90)),  # 3
    Part.LineSegment(Vector(255, -145.7, 0), Vector(255, -108.3, 0)),  # 4
    Part.ArcOfCircle(Part.Circle(Vector(255, -105.2, 0), Vector(0, 0, 1), 3.2), math.radians(-90), math.radians(90)),  # 5
    Part.LineSegment(Vector(255, -102, 0), Vector(237, -102, 0)),  # 6
    Part.ArcOfCircle(Part.Circle(Vector(237, -105.2, 0), Vector(0, 0, 1), 3.2), math.radians(90), math.radians(270)),  # 7
], False)
sketch7.addConstraint([
    Sketcher.Constraint("Coincident", 0, 2, 1, 1),
    Sketcher.Constraint("Tangent", 1, 2, 2, 1),
    Sketcher.Constraint("Tangent", 2, 2, 3, 1),
    Sketcher.Constraint("Coincident", 3, 2, 4, 1),
    Sketcher.Constraint("Coincident", 4, 2, 5, 1),
    Sketcher.Constraint("Tangent", 5, 2, 6, 1),
    Sketcher.Constraint("Tangent", 6, 2, 7, 1),
    Sketcher.Constraint("Coincident", 7, 2, 0, 1),
    Sketcher.Constraint("Vertical", 0),
    Sketcher.Constraint("Horizontal", 2),
    Sketcher.Constraint("Vertical", 4),
    Sketcher.Constraint("Horizontal", 6),
    Sketcher.Constraint("Equal", 1, 3),
    Sketcher.Constraint("Equal", 3, 5),
    Sketcher.Constraint("Equal", 5, 7),
    Sketcher.Constraint("Vertical", 3, 3, 5, 3),
    Sketcher.Constraint("Vertical", 1, 3, 7, 3),
    Sketcher.Constraint("Vertical", 7, 3, 0, 2),
    Sketcher.Constraint("Vertical", 2, 2, 3, 2),
    Sketcher.Constraint("DistanceX", 2, 1, 2, 2, Q("18 mm")),
    Sketcher.Constraint("DistanceY", 0, 2, 0, 1, Q("37.3 mm")),
    Sketcher.Constraint("DistanceX", -1, 1, 1, 3, Q("237 mm")),
    Sketcher.Constraint("DistanceY", 1, 2, -1, 1, Q("152 mm")),
    Sketcher.Constraint("DistanceY", 5, 2, -1, 1, Q("102 mm")),
])
pocket6 = doc.addObject("PartDesign::Pocket", "Pocket005")
body.addObject(pocket6)
pocket6.Profile = sketch7
pocket6.Length = 44
pocket6.Reversed = True

# Sketch on XY plane
sketch8 = doc.addObject("Sketcher::SketchObject", "Sketch007")
body.addObject(sketch8)
sketch8.AttachmentSupport = (doc.XY_Plane, [""])
sketch8.MapMode = "FlatFace"
sketch8.addGeometry(Part.Circle(Vector(0, 0, 0), Vector(0, 0, 1), 187), False)
sketch8.addConstraint([
    Sketcher.Constraint("Coincident", 0, 3, -1, 1),
    Sketcher.Constraint("Diameter", 0, Q("373.533083 mm")),
])
pocket7 = doc.addObject("PartDesign::Pocket", "Pocket006")
body.addObject(pocket7)
pocket7.Profile = sketch8
pocket7.Length = 91
pocket7.Reversed = True

doc.recompute()
